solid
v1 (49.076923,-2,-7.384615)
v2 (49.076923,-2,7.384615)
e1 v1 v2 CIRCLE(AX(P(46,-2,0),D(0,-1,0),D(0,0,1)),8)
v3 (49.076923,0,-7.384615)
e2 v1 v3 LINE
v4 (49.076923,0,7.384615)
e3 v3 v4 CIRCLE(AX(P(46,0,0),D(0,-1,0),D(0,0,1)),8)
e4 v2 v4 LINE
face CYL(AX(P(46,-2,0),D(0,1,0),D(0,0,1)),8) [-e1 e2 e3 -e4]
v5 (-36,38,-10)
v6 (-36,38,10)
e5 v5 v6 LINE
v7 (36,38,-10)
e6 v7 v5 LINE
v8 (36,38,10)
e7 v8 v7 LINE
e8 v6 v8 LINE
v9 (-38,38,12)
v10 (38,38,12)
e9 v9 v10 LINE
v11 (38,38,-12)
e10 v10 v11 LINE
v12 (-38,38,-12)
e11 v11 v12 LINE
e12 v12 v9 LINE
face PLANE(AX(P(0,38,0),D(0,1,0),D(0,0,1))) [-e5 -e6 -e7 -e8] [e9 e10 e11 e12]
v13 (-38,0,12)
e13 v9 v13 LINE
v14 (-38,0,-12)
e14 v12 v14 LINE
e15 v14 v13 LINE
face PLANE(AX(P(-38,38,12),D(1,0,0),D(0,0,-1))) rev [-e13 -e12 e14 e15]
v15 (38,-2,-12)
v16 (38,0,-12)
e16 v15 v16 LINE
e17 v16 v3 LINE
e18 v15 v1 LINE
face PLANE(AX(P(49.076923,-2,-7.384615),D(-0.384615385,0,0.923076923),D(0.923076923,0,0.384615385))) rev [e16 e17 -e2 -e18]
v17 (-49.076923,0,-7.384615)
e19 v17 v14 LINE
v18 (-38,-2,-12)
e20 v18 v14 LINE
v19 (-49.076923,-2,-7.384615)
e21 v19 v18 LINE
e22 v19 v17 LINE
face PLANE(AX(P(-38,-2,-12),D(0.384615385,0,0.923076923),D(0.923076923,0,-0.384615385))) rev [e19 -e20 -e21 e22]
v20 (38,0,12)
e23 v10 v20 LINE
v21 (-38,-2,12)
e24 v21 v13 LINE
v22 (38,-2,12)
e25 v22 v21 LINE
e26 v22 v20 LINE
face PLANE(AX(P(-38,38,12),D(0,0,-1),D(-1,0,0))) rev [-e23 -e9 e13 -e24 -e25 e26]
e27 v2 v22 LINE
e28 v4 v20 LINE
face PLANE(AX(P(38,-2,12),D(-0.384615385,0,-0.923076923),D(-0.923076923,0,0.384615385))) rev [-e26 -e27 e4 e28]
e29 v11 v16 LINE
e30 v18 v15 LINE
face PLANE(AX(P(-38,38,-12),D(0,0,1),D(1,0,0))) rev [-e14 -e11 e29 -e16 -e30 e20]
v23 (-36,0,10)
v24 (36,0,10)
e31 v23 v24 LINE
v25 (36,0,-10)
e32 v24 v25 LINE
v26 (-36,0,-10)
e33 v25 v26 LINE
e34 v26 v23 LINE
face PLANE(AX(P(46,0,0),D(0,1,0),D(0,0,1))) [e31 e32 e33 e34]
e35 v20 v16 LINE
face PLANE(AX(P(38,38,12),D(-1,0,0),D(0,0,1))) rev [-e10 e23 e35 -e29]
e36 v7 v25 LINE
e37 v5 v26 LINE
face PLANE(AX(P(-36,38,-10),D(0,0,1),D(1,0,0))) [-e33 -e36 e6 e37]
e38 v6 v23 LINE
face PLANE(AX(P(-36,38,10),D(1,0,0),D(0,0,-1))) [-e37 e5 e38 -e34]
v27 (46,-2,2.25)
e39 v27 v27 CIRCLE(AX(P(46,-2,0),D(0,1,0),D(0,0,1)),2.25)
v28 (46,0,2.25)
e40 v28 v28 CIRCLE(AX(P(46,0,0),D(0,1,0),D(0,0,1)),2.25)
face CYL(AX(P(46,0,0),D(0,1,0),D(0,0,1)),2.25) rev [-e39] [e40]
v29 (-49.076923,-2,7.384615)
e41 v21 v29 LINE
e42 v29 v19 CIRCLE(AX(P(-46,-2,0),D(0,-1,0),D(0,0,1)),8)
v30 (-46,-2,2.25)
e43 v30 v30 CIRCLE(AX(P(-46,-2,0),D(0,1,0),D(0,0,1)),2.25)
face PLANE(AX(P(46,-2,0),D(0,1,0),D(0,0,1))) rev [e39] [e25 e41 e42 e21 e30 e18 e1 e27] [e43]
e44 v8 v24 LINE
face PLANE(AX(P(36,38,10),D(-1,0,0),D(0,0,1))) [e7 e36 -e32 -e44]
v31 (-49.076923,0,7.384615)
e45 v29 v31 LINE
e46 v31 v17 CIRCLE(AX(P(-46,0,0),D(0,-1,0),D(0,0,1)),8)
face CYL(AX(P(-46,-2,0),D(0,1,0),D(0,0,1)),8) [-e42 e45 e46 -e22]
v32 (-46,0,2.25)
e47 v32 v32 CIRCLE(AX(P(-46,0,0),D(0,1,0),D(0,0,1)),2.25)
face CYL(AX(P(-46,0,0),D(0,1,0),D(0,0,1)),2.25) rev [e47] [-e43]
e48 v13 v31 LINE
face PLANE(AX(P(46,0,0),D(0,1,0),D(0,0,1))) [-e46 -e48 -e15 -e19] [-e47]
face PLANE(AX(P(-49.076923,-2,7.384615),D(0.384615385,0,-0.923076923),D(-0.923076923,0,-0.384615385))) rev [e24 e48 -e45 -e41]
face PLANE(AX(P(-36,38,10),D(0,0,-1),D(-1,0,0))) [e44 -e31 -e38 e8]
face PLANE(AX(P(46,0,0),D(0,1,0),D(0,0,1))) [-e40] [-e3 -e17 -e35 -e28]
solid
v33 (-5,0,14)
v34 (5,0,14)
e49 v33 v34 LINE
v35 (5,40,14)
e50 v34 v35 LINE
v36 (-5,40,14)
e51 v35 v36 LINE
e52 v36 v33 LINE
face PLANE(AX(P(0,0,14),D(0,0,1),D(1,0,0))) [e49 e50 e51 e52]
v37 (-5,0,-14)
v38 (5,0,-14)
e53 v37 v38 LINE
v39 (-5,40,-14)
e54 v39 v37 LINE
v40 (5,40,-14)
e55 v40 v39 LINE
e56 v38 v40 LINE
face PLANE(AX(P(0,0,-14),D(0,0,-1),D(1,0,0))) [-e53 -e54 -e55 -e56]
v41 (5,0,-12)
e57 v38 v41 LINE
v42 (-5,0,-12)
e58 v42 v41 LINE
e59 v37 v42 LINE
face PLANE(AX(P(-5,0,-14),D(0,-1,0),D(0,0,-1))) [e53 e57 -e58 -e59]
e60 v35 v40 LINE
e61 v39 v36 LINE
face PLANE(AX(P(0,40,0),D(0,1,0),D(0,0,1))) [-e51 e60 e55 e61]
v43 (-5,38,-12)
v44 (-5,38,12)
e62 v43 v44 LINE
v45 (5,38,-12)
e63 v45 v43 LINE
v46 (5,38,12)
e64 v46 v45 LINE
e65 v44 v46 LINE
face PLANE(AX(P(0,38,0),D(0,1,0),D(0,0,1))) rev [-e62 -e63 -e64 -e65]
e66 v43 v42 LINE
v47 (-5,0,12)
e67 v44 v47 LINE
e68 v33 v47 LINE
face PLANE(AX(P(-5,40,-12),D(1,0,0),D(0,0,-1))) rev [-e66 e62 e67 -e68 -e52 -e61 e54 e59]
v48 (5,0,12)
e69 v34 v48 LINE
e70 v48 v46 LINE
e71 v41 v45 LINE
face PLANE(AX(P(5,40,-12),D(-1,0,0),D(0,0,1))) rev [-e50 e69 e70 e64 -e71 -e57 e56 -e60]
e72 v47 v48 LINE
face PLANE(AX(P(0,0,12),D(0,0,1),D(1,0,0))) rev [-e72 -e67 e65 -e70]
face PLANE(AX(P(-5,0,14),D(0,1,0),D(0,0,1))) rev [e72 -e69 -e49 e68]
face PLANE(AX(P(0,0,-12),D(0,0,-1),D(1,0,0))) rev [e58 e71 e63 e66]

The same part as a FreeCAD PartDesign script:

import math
import FreeCAD as App
import Part
import Sketcher
from FreeCAD import Vector
Q = App.Units.Quantity


def add_polygon(sketch, points):
    """Adds a closed chain of lines whose ends are joined by coincident constraints."""
    first, n = sketch.GeometryCount, len(points)
    for a, b in zip(points, points[1:] + points[:1]):
        sketch.addGeometry(Part.LineSegment(App.Vector(*a, 0), App.Vector(*b, 0)), False)
    for i in range(n):
        sketch.addConstraint(Sketcher.Constraint("Coincident", first + i, 2, first + (i + 1) % n, 1))

doc = App.newDocument("Part")
params = doc.addObject("Spreadsheet::Sheet", "Params")
for row, (alias, value) in enumerate([
    ("sketch1_width", "76 mm"),
    ("sketch1_width2", "72 mm"),
    ("sketch1_height", "24 mm"),
    ("sketch1_height2", "20 mm"),
    ("pad1_length", "38 mm"),
    ("sketch2_radius", "8 mm"),
    ("sketch2_width", "76 mm"),
    ("sketch2_length", "12 mm"),
    ("pad2_length", "2 mm"),
    ("sketch3_width", "2 mm"),
    ("sketch3_height", "2.25 mm"),
    ("groove_angle", "360 deg"),
    ("linearpattern_pitch", "92 mm"),
    ("sketch4_width", "10 mm"),
    ("sketch4_height", "24 mm"),
    ("pad3_length", "2 mm"),
    ("sketch5_width", "10 mm"),
    ("sketch5_height", "40 mm"),
    ("pad4_length", "2 mm"),
], start=1):
    params.set(f"A{row}", alias)
    params.set(f"B{row}", "=" + value)
    params.setAlias(f"B{row}", alias)

body = doc.addObject("PartDesign::Body", "Body")

sketch1 = body.newObject("Sketcher::SketchObject", "Sketch")
sketch1.AttachmentSupport = (doc.getObject("XZ_Plane"), [""])
sketch1.MapMode = "FlatFace"
add_polygon(sketch1, [(-38, -12), (-38, 12), (38, 12), (38, -12)])
add_polygon(sketch1, [(36, 10), (-36, 10), (-36, -10), (36, -10)])
sketch1.addConstraint([
    Sketcher.Constraint("Vertical", 0),
    Sketcher.Constraint("Horizontal", 1),
    Sketcher.Constraint("Vertical", 2),
    Sketcher.Constraint("Horizontal", 3),
    Sketcher.Constraint("Horizontal", 4),
    Sketcher.Constraint("Vertical", 5),
    Sketcher.Constraint("Horizontal", 6),
    Sketcher.Constraint("Vertical", 7),
    Sketcher.Constraint("Symmetric", 0, 2, 2, 2, -1, 1),
    Sketcher.Constraint("Symmetric", 4, 2, 6, 2, -1, 1),
    Sketcher.Constraint("DistanceX", 1, 1, 1, 2, Q("76 mm")),
    Sketcher.Constraint("DistanceX", 4, 2, 4, 1, Q("72 mm")),
    Sketcher.Constraint("DistanceY", 0, 1, 0, 2, Q("24 mm")),
    Sketcher.Constraint("DistanceY", 5, 2, 5, 1, Q("20 mm")),
])
sketch1.setExpression("Constraints[18]", "Params.sketch1_width")
sketch1.setExpression("Constraints[19]", "Params.sketch1_width2")
sketch1.setExpression("Constraints[20]", "Params.sketch1_height")
sketch1.setExpression("Constraints[21]", "Params.sketch1_height2")
pad1 = body.newObject("PartDesign::Pad", "Pad")
pad1.Profile = sketch1
pad1.setExpression("Length", "Params.pad1_length")
pad1.Reversed = True

sketch2 = body.newObject("Sketcher::SketchObject", "Sketch001")
sketch2.AttachmentSupport = (doc.getObject("XZ_Plane"), [""])
sketch2.MapMode = "FlatFace"
sketch2.addGeometry([
    Part.LineSegment(Vector(38, 12, 0), Vector(-38, 12, 0)),
    Part.LineSegment(Vector(-38, 12, 0), Vector(-49.076923, 7.384615, 0)),
    Part.ArcOfCircle(Part.Circle(Vector(-46, 0, 0), Vector(0, 0, 1), 8), math.radians(112.619865), math.radians(247.380135)),
    Part.LineSegment(Vector(-49.076923, -7.384615, 0), Vector(-38, -12, 0)),
    Part.LineSegment(Vector(-38, -12, 0), Vector(38, -12, 0)),
    Part.LineSegment(Vector(38, -12, 0), Vector(49.076923, -7.384615, 0)),
    Part.ArcOfCircle(Part.Circle(Vector(46, 0, 0), Vector(0, 0, 1), 8), math.radians(-67.380135), math.radians(67.380135)),
    Part.LineSegment(Vector(49.076923, 7.384615, 0), Vector(38, 12, 0)),
], False)
sketch2.addConstraint([
    Sketcher.Constraint("Coincident", 0, 2, 1, 1),
    Sketcher.Constraint("Tangent", 1, 2, 2, 1),
    Sketcher.Constraint("Tangent", 2, 2, 3, 1),
    Sketcher.Constraint("Coincident", 3, 2, 4, 1),
    Sketcher.Constraint("Coincident", 4, 2, 5, 1),
    Sketcher.Constraint("Tangent", 5, 2, 6, 1),
    Sketcher.Constraint("Tangent", 6, 2, 7, 1),
    Sketcher.Constraint("Coincident", 7, 2, 0, 1),
    Sketcher.Constraint("Horizontal", 0),
    Sketcher.Constraint("Horizontal", 4),
    Sketcher.Constraint("Equal", 2, 6),
    Sketcher.Constraint("Symmetric", 2, 3, 6, 3, -1, 1),
    Sketcher.Constraint("Symmetric", 0, 2, 4, 2, -1, 1),
    Sketcher.Constraint("Symmetric", 2, 2, 5, 2, -2),
    Sketcher.Constraint("Parallel", 3, 7),
    Sketcher.Constraint("Radius", 2, Q("8 mm")),
    Sketcher.Constraint("DistanceX", 0, 2, 0, 1, Q("76 mm")),
    Sketcher.Constraint("Distance", 1, Q("12 mm")),
    Sketcher.Constraint("DistanceX", 2, 3, -1, 1, Q("46 mm")),
])
sketch2.setExpression("Constraints[15]", "Params.sketch2_radius")
sketch2.setExpression("Constraints[16]", "Params.sketch2_width")
sketch2.setExpression("Constraints[17]", "Params.sketch2_length")
pad2 = body.newObject("PartDesign::Pad", "Pad001")
pad2.Profile = sketch2
pad2.setExpression("Length", "Params.pad2_length")

sketch3 = body.newObject("Sketcher::SketchObject", "Sketch002")
sketch3.AttachmentSupport = (doc.getObject("YZ_Plane"), [""])
sketch3.MapMode = "FlatFace"
sketch3.AttachmentOffset = App.Placement(Vector(0, 0, -46), App.Rotation())
add_polygon(sketch3, [(-2, 0), (0, 0), (0, 2.25), (-2, 2.25)])
sketch3.addConstraint([
    Sketcher.Constraint("Horizontal", 0),
    Sketcher.Constraint("Vertical", 1),
    Sketcher.Constraint("Horizontal", 2),
    Sketcher.Constraint("Vertical", 3),
    Sketcher.Constraint("Coincident", 0, 2, -1, 1),
    Sketcher.Constraint("DistanceX", 0, 1, 0, 2, Q("2 mm")),
    Sketcher.Constraint("DistanceY", 1, 1, 1, 2, Q("2.25 mm")),
])
sketch3.setExpression("Constraints[9]", "Params.sketch3_width")
sketch3.setExpression("Constraints[10]", "Params.sketch3_height")
groove = body.newObject("PartDesign::Groove", "Groove")
groove.Profile = sketch3
groove.ReferenceAxis = (sketch3, ["H_Axis"])
groove.setExpression("Angle", "Params.groove_angle")
doc.recompute()

linearpattern = body.newObject("PartDesign::LinearPattern", "LinearPattern")
linearpattern.Originals = [groove]
linearpattern.Direction = (doc.getObject("X_Axis"), [""])
linearpattern.Mode = "offset"
linearpattern.setExpression("Offset", "Params.linearpattern_pitch")
linearpattern.Occurrences = 2
body.Tip = linearpattern
body2 = doc.addObject("PartDesign::Body", "Body001")

sketch4 = body2.newObject("Sketcher::SketchObject", "Sketch003")
sketch4.AttachmentSupport = (doc.getObject("XZ_Plane001"), [""])
sketch4.MapMode = "FlatFace"
sketch4.AttachmentOffset = App.Placement(Vector(0, 0, -38), App.Rotation())
add_polygon(sketch4, [(-5, -12), (-5, 12), (5, 12), (5, -12)])
sketch4.addConstraint([
    Sketcher.Constraint("Vertical", 0),
    Sketcher.Constraint("Horizontal", 1),
    Sketcher.Constraint("Vertical", 2),
    Sketcher.Constraint("Horizontal", 3),
    Sketcher.Constraint("Symmetric", 0, 2, 2, 2, -1, 1),
    Sketcher.Constraint("DistanceX", 1, 1, 1, 2, Q("10 mm")),
    Sketcher.Constraint("DistanceY", 0, 1, 0, 2, Q("24 mm")),
])
sketch4.setExpression("Constraints[9]", "Params.sketch4_width")
sketch4.setExpression("Constraints[10]", "Params.sketch4_height")
pad3 = body2.newObject("PartDesign::Pad", "Pad002")
pad3.Profile = sketch4
pad3.setExpression("Length", "Params.pad3_length")
pad3.Reversed = True

sketch5 = body2.newObject("Sketcher::SketchObject", "Sketch004")
sketch5.AttachmentSupport = (doc.getObject("XY_Plane001"), [""])
sketch5.MapMode = "FlatFace"
sketch5.AttachmentOffset = App.Placement(Vector(0, 0, 12), App.Rotation())
add_polygon(sketch5, [(-5, 40), (-5, 0), (5, 0), (5, 40)])
sketch5.addConstraint([
    Sketcher.Constraint("Vertical", 0),
    Sketcher.Constraint("Horizontal", 1),
    Sketcher.Constraint("Vertical", 2),
    Sketcher.Constraint("Horizontal", 3),
    Sketcher.Constraint("Symmetric", 0, 2, 1, 2, -1, 1),
    Sketcher.Constraint("DistanceX", 1, 1, 1, 2, Q("10 mm")),
    Sketcher.Constraint("DistanceY", 0, 2, 0, 1, Q("40 mm")),
])
sketch5.setExpression("Constraints[9]", "Params.sketch5_width")
sketch5.setExpression("Constraints[10]", "Params.sketch5_height")
pad4 = body2.newObject("PartDesign::Pad", "Pad003")
pad4.Profile = sketch5
pad4.setExpression("Length", "Params.pad4_length")
doc.recompute()

mirrored = body2.newObject("PartDesign::Mirrored", "Mirrored")
mirrored.Originals = [pad4]
mirrored.MirrorPlane = (doc.getObject("XY_Plane001"), [""])
body2.Tip = mirrored

doc.recompute()
